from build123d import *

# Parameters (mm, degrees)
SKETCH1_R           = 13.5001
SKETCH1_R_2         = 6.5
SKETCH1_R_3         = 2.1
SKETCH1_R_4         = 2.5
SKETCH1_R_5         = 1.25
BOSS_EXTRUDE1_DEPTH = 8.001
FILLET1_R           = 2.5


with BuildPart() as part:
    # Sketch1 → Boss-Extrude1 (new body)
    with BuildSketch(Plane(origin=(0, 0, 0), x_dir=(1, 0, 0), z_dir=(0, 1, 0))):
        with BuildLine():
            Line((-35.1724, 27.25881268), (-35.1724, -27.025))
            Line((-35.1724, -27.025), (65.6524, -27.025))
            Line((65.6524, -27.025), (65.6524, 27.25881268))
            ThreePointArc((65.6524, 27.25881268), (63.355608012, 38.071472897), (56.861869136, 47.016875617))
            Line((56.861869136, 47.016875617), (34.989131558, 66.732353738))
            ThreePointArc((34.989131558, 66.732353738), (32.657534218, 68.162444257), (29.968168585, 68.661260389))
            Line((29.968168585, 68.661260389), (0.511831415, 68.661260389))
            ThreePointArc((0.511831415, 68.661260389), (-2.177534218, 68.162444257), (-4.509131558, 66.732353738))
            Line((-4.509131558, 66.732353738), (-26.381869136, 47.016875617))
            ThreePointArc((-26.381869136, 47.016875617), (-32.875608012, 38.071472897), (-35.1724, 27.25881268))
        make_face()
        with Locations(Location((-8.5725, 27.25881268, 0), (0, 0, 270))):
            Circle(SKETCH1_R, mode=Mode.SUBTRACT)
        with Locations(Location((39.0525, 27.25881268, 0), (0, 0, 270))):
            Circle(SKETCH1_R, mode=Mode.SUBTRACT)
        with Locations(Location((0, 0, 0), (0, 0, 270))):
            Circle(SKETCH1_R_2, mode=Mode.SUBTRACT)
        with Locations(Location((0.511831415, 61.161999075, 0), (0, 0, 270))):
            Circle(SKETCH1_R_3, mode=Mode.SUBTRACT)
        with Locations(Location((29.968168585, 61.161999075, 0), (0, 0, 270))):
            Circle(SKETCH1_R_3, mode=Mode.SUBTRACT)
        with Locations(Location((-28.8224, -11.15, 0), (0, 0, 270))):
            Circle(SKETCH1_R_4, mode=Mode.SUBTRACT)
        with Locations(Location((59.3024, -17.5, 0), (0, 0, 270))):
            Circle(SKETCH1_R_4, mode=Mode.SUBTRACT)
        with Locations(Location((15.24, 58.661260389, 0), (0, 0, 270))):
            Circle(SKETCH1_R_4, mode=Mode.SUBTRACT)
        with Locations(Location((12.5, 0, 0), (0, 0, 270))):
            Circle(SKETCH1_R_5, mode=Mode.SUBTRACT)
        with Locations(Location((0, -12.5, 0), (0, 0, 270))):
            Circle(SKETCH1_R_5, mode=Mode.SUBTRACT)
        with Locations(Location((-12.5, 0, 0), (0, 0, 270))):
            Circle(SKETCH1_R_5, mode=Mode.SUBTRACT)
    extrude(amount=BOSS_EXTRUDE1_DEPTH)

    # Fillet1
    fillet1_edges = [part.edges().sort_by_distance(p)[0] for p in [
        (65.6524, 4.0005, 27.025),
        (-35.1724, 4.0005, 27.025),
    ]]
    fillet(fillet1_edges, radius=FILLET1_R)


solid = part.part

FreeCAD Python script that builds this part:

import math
import FreeCAD as App
import Part
import Sketcher

V = App.Vector


def edges_at(feature, points):
    """Names of the edges that pass closest to the given points."""
    edges = feature.Shape.Edges
    near = lambda p: min(range(len(edges)), key=lambda i: edges[i].distToShape(Part.Vertex(*p))[0])
    return sorted({f"Edge{near(p) + 1}" for p in points})

doc = App.newDocument("Part")
params = doc.addObject("Spreadsheet::Sheet", "Params")
for row, (alias, value) in enumerate([
    ("sketch1_diameter", "5 mm"),
    ("sketch1_diameter2", "13 mm"),
    ("sketch1_diameter3", "2.5 mm"),
    ("sketch1_diameter4", "4.2 mm"),
    ("pad1_length", "8.001 mm"),
    ("fillet_radius", "2.5 mm"),
], start=1):
    params.set(f"A{row}", alias)
    params.set(f"B{row}", "=" + value)
    params.setAlias(f"B{row}", alias)

body = doc.addObject("PartDesign::Body", "Body")

sketch1 = doc.addObject("Sketcher::SketchObject", "Sketch")
body.addObject(sketch1)
sketch1.AttachmentSupport = (doc.XZ_Plane, [""])
sketch1.MapMode = "FlatFace"
sketch1.addGeometry([
    Part.LineSegment(V(-35.1724, -27.258813, 0), V(-35.1724, 27.025, 0)),
    Part.LineSegment(V(-35.1724, 27.025, 0), V(65.6524, 27.025, 0)),
    Part.LineSegment(V(65.6524, 27.025, 0), V(65.6524, -27.258813, 0)),
    Part.ArcOfCircle(Part.Circle(V(39.0525, -27.258813, 0), V(0, 0, 1), 26.5999), math.radians(-47.969379), math.radians(0)),
    Part.LineSegment(V(56.861869, -47.016876, 0), V(34.989132, -66.732354, 0)),
    Part.ArcOfCircle(Part.Circle(V(29.968169, -61.161999, 0), V(0, 0, 1), 7.499261), math.radians(-90), math.radians(-47.969379)),
    Part.LineSegment(V(29.968169, -68.66126, 0), V(0.511831, -68.66126, 0)),
    Part.ArcOfCircle(Part.Circle(V(0.511831, -61.161999, 0), V(0, 0, 1), 7.499261), math.radians(-132.030621), math.radians(-90)),
    Part.LineSegment(V(-4.509132, -66.732354, 0), V(-26.381869, -47.016876, 0)),
    Part.ArcOfCircle(Part.Circle(V(-8.5725, -27.258813, 0), V(0, 0, 1), 26.5999), math.radians(-180), math.radians(-132.030621)),
    Part.Circle(V(-28.8224, 11.15, 0), V(0, 0, 1), 2.5),
    Part.Circle(V(-12.5, 0, 0), V(0, 0, 1), 1.25),
    Part.Circle(V(0, 12.5, 0), V(0, 0, 1), 1.25),
    Part.Circle(V(0, 0, 0), V(0, 0, 1), 6.5),
    Part.Circle(V(12.5, 0, 0), V(0, 0, 1), 1.25),
    Part.Circle(V(59.3024, 17.5, 0), V(0, 0, 1), 2.5),
    Part.Circle(V(-8.5725, -27.258813, 0), V(0, 0, 1), 13.5001),
    Part.Circle(V(0.511831, -61.161999, 0), V(0, 0, 1), 2.1),
    Part.Circle(V(39.0525, -27.258813, 0), V(0, 0, 1), 13.5001),
    Part.Circle(V(15.24, -58.66126, 0), V(0, 0, 1), 2.5),
    Part.Circle(V(29.968169, -61.161999, 0), V(0, 0, 1), 2.1),
], False)
sketch1.addConstraint([
    Sketcher.Constraint("Coincident", 0, 2, 1, 1),
    Sketcher.Constraint("Coincident", 1, 2, 2, 1),
    Sketcher.Constraint("Tangent", 2, 2, 3, 2),
    Sketcher.Constraint("Tangent", 3, 1, 4, 1),
    Sketcher.Constraint("Tangent", 4, 2, 5, 2),
    Sketcher.Constraint("Tangent", 5, 1, 6, 1),
    Sketcher.Constraint("Tangent", 6, 2, 7, 2),
    Sketcher.Constraint("Tangent", 7, 1, 8, 1),
    Sketcher.Constraint("Tangent", 8, 2, 9, 2),
    Sketcher.Constraint("Tangent", 9, 1, 0, 1),
    Sketcher.Constraint("Vertical", 0),
    Sketcher.Constraint("Horizontal", 1),
    Sketcher.Constraint("Vertical", 2),
    Sketcher.Constraint("Horizontal", 6),
    Sketcher.Constraint("Coincident", 13, 3, -1, 1),
    Sketcher.Constraint("Coincident", 16, 3, 9, 3),
    Sketcher.Constraint("Coincident", 17, 3, 7, 3),
    Sketcher.Constraint("Coincident", 18, 3, 3, 3),
    Sketcher.Constraint("Coincident", 20, 3, 5, 3),
    Sketcher.Constraint("Equal", 5, 7),
    Sketcher.Constraint("Equal", 3, 9),
    Sketcher.Constraint("Equal", 11, 12),
    Sketcher.Constraint("Equal", 12, 14),
    Sketcher.Constraint("Equal", 10, 15),
    Sketcher.Constraint("Equal", 16, 18),
    Sketcher.Constraint("Equal", 15, 19),
    Sketcher.Constraint("Equal", 17, 20),
    Sketcher.Constraint("Symmetric", 11, 3, 14, 3, -1, 1),
    Sketcher.Constraint("PointOnObject", 11, 3, -1),
    Sketcher.Constraint("PointOnObject", 12, 3, -2),
    Sketcher.Constraint("Horizontal", 3, 3, 9, 3),
    Sketcher.Constraint("Horizontal", 4, 2, 7, 1),
    Sketcher.Constraint("Diameter", 10, 5.0),
    Sketcher.Constraint("Diameter", 13, 13.0),
    Sketcher.Constraint("Diameter", 11, 2.5),
    Sketcher.Constraint("Diameter", 17, 4.2),
    Sketcher.Constraint("DistanceX", 11, 3, 14, 3, 25.0),
    Sketcher.Constraint("DistanceY", 12, 3, 15, 3, 5.0),
    Sketcher.Constraint("DistanceY", 5, 1, 19, 3, 10.0),
    Sketcher.Constraint("Diameter", 16, 27.0002),
    Sketcher.Constraint("DistanceY", -1, 1, 12, 3, 12.5),
    Sketcher.Constraint("Radius", 3, 26.5999),
    Sketcher.Constraint("DistanceY", -1, 1, 10, 3, 11.15),
    Sketcher.Constraint("DistanceX", -1, 1, 19, 3, 15.24),
    Sketcher.Constraint("Radius", 5, 7.499261),
    Sketcher.Constraint("DistanceX", 0, 2, 10, 3, 6.35),
    Sketcher.Constraint("DistanceX", 15, 3, 1, 2, 6.35),
    Sketcher.Constraint("DistanceX", 1, 1, 1, 2, 100.8248),
    Sketcher.Constraint("DistanceY", 5, 3, -1, 1, 61.161999),
    Sketcher.Constraint("DistanceY", -1, 1, 0, 2, 27.025),
    Sketcher.Constraint("DistanceX", -1, 1, 3, 3, 39.0525),
    Sketcher.Constraint("DistanceX", 20, 3, 3, 1, 26.893701),
    Sketcher.Constraint("DistanceX", 7, 3, 4, 2, 34.4773),
])
sketch1.setExpression("Constraints[32]", "Params.sketch1_diameter")
sketch1.setExpression("Constraints[33]", "Params.sketch1_diameter2")
sketch1.setExpression("Constraints[34]", "Params.sketch1_diameter3")
sketch1.setExpression("Constraints[35]", "Params.sketch1_diameter4")
pad1 = doc.addObject("PartDesign::Pad", "Pad")
body.addObject(pad1)
pad1.Profile = sketch1
pad1.setExpression("Length", "Params.pad1_length")
pad1.Reversed = True
doc.recompute()

fillet = doc.addObject("PartDesign::Fillet", "Fillet")
body.addObject(fillet)
fillet.Base = (pad1, edges_at(pad1, [(65.652, 4, 27.025), (-35.172, 4, 27.025)]))
fillet.setExpression("Radius", "Params.fillet_radius")

doc.recompute()
